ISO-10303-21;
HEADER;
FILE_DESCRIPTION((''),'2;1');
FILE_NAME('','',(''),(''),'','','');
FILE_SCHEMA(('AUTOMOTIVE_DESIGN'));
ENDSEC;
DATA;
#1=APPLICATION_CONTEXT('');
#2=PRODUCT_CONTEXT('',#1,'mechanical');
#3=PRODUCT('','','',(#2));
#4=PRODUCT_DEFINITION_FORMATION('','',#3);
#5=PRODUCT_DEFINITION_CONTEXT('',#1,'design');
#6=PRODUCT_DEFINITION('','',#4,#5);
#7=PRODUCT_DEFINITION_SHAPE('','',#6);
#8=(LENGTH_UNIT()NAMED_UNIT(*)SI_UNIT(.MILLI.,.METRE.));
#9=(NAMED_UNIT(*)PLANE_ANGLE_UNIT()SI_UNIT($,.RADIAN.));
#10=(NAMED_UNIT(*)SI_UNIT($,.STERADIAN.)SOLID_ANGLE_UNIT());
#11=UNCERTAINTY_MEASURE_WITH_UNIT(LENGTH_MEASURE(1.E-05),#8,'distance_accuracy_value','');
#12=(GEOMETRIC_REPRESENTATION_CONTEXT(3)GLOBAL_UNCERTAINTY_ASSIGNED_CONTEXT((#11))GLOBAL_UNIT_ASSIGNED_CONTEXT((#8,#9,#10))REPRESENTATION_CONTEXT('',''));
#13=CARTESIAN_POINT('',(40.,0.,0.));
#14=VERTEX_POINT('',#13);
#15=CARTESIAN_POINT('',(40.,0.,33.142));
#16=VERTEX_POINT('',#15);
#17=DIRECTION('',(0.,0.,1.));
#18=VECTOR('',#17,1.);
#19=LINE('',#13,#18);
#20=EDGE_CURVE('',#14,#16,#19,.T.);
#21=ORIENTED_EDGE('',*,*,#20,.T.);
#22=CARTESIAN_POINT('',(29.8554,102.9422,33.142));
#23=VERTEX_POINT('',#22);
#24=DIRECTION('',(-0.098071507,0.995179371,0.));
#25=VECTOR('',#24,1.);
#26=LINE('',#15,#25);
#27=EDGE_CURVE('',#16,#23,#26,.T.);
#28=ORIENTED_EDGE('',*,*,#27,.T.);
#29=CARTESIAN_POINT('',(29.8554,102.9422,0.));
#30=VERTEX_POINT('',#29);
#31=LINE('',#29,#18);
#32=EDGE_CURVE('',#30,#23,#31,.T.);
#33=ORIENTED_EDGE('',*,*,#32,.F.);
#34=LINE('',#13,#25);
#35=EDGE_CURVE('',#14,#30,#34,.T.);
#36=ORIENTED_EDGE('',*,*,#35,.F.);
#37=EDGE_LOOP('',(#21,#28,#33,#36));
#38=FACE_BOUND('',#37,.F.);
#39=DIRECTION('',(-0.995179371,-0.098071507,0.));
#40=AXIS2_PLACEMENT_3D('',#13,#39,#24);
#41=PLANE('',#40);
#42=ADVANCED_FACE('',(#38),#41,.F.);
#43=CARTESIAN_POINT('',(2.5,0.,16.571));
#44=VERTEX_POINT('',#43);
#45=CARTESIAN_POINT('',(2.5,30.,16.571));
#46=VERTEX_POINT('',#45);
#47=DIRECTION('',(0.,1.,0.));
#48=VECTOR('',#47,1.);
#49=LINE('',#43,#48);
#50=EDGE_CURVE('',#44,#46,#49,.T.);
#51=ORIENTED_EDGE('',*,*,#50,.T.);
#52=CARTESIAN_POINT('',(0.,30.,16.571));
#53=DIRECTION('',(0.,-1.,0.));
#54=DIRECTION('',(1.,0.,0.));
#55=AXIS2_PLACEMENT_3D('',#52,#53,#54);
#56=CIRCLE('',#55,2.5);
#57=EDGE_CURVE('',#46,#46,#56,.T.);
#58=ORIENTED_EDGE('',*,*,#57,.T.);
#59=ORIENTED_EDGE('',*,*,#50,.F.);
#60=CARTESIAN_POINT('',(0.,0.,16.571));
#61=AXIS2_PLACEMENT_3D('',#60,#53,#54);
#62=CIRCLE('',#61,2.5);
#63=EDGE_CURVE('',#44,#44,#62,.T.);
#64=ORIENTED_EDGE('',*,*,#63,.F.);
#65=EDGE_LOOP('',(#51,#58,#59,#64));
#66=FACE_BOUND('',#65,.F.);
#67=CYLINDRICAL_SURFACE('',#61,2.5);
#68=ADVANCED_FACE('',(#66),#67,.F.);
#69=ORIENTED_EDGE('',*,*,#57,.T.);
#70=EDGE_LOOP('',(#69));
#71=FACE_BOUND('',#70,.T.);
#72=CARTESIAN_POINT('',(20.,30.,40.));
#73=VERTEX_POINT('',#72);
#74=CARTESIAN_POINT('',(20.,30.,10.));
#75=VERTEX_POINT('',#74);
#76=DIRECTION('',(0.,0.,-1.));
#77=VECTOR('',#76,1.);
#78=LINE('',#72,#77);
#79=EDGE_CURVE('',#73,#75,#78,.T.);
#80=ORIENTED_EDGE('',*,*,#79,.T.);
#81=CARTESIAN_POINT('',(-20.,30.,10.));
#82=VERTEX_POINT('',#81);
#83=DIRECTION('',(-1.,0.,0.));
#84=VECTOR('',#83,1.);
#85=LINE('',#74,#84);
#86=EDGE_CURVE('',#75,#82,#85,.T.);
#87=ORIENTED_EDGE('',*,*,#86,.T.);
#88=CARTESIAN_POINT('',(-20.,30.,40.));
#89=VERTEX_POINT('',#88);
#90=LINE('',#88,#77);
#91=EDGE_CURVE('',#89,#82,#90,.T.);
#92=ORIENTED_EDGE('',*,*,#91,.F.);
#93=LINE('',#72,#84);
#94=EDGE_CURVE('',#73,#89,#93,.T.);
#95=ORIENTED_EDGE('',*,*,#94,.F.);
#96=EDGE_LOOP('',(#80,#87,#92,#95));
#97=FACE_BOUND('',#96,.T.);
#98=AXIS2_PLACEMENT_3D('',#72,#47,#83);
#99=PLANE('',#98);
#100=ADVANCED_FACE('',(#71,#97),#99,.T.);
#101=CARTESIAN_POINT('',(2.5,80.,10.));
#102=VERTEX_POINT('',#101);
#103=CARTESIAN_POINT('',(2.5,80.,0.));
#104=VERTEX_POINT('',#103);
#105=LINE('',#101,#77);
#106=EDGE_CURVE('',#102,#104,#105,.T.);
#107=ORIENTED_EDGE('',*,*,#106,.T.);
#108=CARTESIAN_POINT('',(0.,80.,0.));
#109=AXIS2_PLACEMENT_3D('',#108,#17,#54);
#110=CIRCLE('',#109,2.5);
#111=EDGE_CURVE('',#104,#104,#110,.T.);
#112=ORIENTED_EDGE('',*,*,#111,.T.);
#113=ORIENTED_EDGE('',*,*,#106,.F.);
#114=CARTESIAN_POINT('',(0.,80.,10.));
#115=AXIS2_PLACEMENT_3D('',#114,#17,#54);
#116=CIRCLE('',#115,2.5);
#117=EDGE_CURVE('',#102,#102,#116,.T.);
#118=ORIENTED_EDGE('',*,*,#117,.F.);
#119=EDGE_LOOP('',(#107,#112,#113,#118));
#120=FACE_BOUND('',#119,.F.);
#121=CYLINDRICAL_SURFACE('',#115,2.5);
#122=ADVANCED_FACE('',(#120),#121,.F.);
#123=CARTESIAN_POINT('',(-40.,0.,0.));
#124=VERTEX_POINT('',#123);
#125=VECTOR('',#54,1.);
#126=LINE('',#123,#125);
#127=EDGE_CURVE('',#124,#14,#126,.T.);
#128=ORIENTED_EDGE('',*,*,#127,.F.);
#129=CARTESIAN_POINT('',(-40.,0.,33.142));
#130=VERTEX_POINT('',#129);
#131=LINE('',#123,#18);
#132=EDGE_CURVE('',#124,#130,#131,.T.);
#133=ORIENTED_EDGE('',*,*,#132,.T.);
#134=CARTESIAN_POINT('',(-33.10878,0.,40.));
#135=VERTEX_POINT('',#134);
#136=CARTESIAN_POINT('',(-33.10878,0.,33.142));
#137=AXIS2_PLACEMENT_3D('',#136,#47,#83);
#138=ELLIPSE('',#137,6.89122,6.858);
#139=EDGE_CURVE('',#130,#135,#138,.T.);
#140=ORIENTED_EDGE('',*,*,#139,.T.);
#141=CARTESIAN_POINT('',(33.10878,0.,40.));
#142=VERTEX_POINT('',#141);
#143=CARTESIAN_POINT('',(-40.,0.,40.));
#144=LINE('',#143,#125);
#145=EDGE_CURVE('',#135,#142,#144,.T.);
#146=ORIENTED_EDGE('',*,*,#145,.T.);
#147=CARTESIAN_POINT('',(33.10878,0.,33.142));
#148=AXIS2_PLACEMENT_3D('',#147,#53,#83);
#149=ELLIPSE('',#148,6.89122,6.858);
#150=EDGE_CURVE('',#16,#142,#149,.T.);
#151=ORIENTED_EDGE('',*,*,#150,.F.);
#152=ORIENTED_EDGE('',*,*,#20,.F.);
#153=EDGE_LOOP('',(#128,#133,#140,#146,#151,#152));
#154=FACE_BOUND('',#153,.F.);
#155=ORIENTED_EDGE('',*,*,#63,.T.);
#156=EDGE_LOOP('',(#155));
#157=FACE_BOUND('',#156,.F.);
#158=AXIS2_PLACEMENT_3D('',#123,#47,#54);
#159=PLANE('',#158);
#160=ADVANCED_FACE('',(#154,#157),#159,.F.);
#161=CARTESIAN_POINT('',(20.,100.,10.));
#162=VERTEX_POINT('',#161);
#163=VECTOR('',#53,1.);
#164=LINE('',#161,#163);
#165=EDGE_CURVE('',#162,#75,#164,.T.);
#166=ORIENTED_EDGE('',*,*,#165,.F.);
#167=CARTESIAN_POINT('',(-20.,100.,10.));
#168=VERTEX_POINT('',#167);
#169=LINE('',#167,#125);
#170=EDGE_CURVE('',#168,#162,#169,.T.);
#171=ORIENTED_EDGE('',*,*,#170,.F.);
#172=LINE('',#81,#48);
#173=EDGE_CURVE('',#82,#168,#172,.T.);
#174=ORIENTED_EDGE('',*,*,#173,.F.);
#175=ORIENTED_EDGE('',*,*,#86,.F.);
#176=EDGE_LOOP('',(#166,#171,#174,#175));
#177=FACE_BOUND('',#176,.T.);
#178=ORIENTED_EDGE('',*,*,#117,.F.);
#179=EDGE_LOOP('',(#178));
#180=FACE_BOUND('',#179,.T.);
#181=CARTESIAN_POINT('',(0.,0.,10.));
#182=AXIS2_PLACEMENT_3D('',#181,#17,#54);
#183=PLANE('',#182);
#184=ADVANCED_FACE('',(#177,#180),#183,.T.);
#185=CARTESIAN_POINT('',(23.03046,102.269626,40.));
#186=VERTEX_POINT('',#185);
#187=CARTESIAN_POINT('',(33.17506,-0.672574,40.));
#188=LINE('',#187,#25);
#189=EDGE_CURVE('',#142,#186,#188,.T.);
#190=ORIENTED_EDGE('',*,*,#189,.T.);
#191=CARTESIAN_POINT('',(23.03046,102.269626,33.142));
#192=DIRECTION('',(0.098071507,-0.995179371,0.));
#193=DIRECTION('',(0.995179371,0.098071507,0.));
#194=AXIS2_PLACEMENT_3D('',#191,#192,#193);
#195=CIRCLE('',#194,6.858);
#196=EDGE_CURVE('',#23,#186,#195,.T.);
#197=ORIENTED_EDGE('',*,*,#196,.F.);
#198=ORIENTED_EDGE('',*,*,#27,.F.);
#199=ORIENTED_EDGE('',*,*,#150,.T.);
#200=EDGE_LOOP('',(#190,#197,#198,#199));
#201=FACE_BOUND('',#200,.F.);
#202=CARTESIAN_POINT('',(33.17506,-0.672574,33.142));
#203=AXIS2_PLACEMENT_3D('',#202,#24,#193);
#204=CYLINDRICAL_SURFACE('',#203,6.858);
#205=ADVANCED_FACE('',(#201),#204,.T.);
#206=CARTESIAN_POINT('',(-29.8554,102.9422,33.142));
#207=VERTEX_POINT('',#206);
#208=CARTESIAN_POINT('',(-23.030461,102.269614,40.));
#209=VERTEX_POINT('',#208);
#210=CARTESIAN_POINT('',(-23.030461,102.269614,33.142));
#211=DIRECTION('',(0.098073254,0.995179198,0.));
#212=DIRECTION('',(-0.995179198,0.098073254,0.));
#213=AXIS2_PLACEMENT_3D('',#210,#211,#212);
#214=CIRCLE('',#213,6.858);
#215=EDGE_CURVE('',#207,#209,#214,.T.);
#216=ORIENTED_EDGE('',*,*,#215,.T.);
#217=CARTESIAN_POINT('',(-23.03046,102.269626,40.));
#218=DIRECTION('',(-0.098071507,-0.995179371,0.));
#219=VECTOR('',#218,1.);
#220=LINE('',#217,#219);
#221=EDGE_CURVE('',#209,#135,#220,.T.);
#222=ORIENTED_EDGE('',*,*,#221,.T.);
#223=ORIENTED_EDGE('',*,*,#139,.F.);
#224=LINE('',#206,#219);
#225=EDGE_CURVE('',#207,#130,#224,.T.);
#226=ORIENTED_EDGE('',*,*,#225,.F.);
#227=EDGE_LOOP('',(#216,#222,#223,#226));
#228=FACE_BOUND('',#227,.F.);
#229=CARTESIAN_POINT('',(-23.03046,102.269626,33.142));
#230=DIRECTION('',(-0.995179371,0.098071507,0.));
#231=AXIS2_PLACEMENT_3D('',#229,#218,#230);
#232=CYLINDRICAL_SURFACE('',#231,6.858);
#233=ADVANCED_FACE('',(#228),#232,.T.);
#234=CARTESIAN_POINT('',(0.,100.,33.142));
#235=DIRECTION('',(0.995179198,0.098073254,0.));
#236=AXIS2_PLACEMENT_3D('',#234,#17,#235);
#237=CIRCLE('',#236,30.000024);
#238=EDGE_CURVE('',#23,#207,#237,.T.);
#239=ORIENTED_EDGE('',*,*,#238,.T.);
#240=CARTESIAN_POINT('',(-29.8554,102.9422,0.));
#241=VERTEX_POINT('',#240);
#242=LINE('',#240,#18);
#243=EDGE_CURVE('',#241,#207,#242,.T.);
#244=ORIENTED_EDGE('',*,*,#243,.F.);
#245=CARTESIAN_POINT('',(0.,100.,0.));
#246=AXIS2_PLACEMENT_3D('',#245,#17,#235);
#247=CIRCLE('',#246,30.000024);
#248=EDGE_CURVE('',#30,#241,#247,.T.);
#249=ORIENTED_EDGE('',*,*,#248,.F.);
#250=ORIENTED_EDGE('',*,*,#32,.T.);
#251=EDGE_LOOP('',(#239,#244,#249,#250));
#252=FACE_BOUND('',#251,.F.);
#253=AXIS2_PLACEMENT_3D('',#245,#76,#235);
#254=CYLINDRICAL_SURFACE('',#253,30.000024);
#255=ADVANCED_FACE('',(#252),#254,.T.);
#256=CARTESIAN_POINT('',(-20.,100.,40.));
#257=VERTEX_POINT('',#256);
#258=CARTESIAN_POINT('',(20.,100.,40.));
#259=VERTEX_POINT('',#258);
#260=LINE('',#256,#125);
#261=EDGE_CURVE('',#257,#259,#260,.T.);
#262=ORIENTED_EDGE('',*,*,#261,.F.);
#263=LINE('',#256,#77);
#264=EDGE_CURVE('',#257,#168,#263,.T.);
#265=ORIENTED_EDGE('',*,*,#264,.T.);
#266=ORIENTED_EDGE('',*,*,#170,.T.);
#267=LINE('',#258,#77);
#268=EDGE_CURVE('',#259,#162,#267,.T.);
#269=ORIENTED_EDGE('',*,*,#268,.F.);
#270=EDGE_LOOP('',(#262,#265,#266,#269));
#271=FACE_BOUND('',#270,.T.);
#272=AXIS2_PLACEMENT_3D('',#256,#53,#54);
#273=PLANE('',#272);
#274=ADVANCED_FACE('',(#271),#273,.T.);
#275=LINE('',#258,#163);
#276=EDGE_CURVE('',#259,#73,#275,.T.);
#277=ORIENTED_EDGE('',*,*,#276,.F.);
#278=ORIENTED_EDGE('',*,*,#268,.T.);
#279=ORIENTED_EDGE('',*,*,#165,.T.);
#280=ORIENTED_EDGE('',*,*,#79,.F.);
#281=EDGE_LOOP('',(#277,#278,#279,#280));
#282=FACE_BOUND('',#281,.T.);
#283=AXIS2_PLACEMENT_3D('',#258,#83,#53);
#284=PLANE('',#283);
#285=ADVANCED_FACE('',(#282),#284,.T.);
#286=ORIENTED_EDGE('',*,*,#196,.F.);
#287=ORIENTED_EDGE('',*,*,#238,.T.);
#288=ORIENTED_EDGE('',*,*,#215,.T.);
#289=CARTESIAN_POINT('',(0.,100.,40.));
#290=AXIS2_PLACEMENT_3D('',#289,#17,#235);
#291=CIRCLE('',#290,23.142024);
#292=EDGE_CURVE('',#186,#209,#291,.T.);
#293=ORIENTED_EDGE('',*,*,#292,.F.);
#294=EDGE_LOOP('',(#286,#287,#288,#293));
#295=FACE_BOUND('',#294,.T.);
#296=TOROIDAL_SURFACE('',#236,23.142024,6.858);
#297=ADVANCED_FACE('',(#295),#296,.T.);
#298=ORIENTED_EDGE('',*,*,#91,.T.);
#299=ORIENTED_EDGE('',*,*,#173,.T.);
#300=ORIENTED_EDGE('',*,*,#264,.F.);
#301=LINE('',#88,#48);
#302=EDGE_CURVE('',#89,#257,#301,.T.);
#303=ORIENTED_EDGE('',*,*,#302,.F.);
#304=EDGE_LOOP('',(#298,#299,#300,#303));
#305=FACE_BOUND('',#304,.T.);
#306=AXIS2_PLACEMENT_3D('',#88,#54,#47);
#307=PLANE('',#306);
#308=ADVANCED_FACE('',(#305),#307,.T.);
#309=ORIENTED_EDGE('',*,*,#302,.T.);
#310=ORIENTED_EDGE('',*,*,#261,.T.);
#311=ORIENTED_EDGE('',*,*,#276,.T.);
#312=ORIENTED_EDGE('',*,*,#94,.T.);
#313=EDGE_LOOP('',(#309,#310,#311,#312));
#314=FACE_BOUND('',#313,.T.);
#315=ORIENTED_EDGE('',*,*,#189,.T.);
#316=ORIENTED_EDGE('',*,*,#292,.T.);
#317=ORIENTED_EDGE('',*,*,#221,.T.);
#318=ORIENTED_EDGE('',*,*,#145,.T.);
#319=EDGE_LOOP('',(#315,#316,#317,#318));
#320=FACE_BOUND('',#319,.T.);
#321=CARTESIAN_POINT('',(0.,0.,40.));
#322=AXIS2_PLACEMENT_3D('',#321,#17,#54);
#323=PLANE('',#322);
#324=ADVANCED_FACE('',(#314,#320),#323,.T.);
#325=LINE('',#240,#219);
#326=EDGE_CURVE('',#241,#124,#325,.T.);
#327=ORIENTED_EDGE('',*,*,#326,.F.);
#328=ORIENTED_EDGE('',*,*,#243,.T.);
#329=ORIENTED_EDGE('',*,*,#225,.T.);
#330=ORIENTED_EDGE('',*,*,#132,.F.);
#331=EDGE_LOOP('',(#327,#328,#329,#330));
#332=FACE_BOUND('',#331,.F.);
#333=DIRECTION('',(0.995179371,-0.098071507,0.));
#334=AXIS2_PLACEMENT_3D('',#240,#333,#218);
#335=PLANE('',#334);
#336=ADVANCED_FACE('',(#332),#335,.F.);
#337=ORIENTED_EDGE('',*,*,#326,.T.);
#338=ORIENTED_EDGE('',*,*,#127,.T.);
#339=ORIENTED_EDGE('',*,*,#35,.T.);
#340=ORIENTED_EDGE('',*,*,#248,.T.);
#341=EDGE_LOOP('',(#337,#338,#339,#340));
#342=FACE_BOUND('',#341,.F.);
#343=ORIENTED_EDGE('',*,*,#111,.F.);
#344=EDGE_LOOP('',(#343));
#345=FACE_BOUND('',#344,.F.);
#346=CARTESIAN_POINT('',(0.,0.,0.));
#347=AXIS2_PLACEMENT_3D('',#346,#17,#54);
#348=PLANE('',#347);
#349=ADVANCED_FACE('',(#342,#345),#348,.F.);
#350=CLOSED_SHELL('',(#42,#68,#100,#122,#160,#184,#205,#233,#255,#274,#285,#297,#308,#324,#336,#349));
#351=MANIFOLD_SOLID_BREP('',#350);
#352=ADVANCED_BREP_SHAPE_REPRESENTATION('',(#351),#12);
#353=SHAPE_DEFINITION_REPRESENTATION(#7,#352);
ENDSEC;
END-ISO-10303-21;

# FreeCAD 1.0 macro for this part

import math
import FreeCAD as App
import Part
import Sketcher
from FreeCAD import Vector


def edges_at(feature, points):
    """Names of the edges that pass closest to the given points."""
    edges = feature.Shape.Edges
    near = lambda p: min(range(len(edges)), key=lambda i: edges[i].distToShape(Part.Vertex(*p))[0])
    return sorted({f"Edge{near(p) + 1}" for p in points})


def add_polygon(sketch, points):
    """Adds a closed chain of lines whose ends are joined by coincident constraints."""
    first, n = sketch.GeometryCount, len(points)
    for a, b in zip(points, points[1:] + points[:1]):
        sketch.addGeometry(Part.LineSegment(App.Vector(*a, 0), App.Vector(*b, 0)), False)
    for i in range(n):
        sketch.addConstraint(Sketcher.Constraint("Coincident", first + i, 2, first + (i + 1) % n, 1))

doc = App.newDocument("Part")
params = doc.addObject("Spreadsheet::Sheet", "Params")
for row, (alias, value) in enumerate([
    ("sketch1_radius", "30 mm"),
    ("sketch1_width", "80 mm"),
    ("pad1_length", "40 mm"),
    ("sketch2_width", "40 mm"),
    ("sketch2_height", "70 mm"),
    ("pocket1_length", "30 mm"),
    ("fillet_radius", "6.858 mm"),
    ("sketch3_diameter", "5 mm"),
    ("pocket2_length", "30 mm"),
    ("sketch4_diameter", "5 mm"),
    ("pocket3_length", "30 mm"),
], start=1):
    params.set(f"A{row}", alias)
    params.set(f"B{row}", "=" + value)
    params.setAlias(f"B{row}", alias)

body = doc.addObject("PartDesign::Body", "Body")

sketch1 = body.newObject("Sketcher::SketchObject", "Sketch")
sketch1.AttachmentSupport = (doc.getObject("XY_Plane"), [""])
sketch1.MapMode = "FlatFace"
sketch1.addGeometry([
    Part.LineSegment(Vector(40, 0, 0), Vector(30, 103, 0)),
    Part.ArcOfCircle(Part.Circle(Vector(0, 100, 0), Vector(0, 0, 1), 30), math.radians(6), math.radians(174)),
    Part.LineSegment(Vector(-30, 103, 0), Vector(-40, 0, 0)),
    Part.LineSegment(Vector(-40, 0, 0), Vector(40, 0, 0)),
], False)
sketch1.addConstraint([
    Sketcher.Constraint("Tangent", 0, 2, 1, 1),
    Sketcher.Constraint("Tangent", 1, 2, 2, 1),
    Sketcher.Constraint("Coincident", 2, 2, 3, 1),
    Sketcher.Constraint("Coincident", 3, 2, 0, 1),
    Sketcher.Constraint("Horizontal", 3),
    Sketcher.Constraint("Symmetric", 2, 2, 3, 2, -1, 1),
    Sketcher.Constraint("PointOnObject", 1, 3, -2),
    Sketcher.Constraint("Radius", 1, 30.0),
    Sketcher.Constraint("DistanceX", 3, 1, 3, 2, 80.0),
    Sketcher.Constraint("DistanceY", -1, 1, 1, 3, 100.0),
])
sketch1.setExpression("Constraints[7]", "Params.sketch1_radius")
sketch1.setExpression("Constraints[8]", "Params.sketch1_width")
pad1 = body.newObject("PartDesign::Pad", "Pad")
pad1.Profile = sketch1
pad1.setExpression("Length", "Params.pad1_length")

sketch2 = body.newObject("Sketcher::SketchObject", "Sketch001")
sketch2.AttachmentSupport = (doc.getObject("XY_Plane"), [""])
sketch2.MapMode = "FlatFace"
sketch2.AttachmentOffset = App.Placement(Vector(0, 0, 40), App.Rotation())
add_polygon(sketch2, [(20, 100), (-20, 100), (-20, 30), (20, 30)])
sketch2.addConstraint([
    Sketcher.Constraint("Horizontal", 0),
    Sketcher.Constraint("Vertical", 1),
    Sketcher.Constraint("Horizontal", 2),
    Sketcher.Constraint("Vertical", 3),
    Sketcher.Constraint("DistanceX", 0, 2, 0, 1, 40.0),
    Sketcher.Constraint("DistanceY", 1, 2, 1, 1, 70.0),
    Sketcher.Constraint("DistanceY", -1, 1, 1, 2, 30.0),
    Sketcher.Constraint("DistanceX", 0, 2, -1, 1, 20.0),
])
sketch2.setExpression("Constraints[8]", "Params.sketch2_width")
sketch2.setExpression("Constraints[9]", "Params.sketch2_height")
pocket1 = body.newObject("PartDesign::Pocket", "Pocket")
pocket1.Profile = sketch2
pocket1.setExpression("Length", "Params.pocket1_length")
doc.recompute()

fillet = body.newObject("PartDesign::Fillet", "Fillet")
fillet.Base = (pocket1, edges_at(pocket1, [(0, 130, 40), (-34.928, 51.471, 40), (34.928, 51.471, 40)]))
fillet.setExpression("Radius", "Params.fillet_radius")

sketch3 = body.newObject("Sketcher::SketchObject", "Sketch002")
sketch3.AttachmentSupport = (doc.getObject("XZ_Plane"), [""])
sketch3.MapMode = "FlatFace"
sketch3.addGeometry(Part.Circle(Vector(0, 16.6, 0), Vector(0, 0, 1), 2.5), False)
sketch3.addConstraint([
    Sketcher.Constraint("PointOnObject", 0, 3, -2),
    Sketcher.Constraint("Diameter", 0, 5.0),
    Sketcher.Constraint("DistanceY", -1, 1, 0, 3, 16.571),
])
sketch3.setExpression("Constraints[1]", "Params.sketch3_diameter")
pocket2 = body.newObject("PartDesign::Pocket", "Pocket001")
pocket2.Profile = sketch3
pocket2.setExpression("Length", "Params.pocket2_length")

sketch4 = body.newObject("Sketcher::SketchObject", "Sketch003")
sketch4.AttachmentSupport = (doc.getObject("XY_Plane"), [""])
sketch4.MapMode = "FlatFace"
sketch4.AttachmentOffset = App.Placement(Vector(0, 0, 10), App.Rotation())
sketch4.addGeometry(Part.Circle(Vector(0, 80, 0), Vector(0, 0, 1), 2.5), False)
sketch4.addConstraint([
    Sketcher.Constraint("PointOnObject", 0, 3, -2),
    Sketcher.Constraint("Diameter", 0, 5.0),
    Sketcher.Constraint("DistanceY", -1, 1, 0, 3, 80.0),
])
sketch4.setExpression("Constraints[1]", "Params.sketch4_diameter")
pocket3 = body.newObject("PartDesign::Pocket", "Pocket002")
pocket3.Profile = sketch4
pocket3.setExpression("Length", "Params.pocket3_length")

doc.recompute()
